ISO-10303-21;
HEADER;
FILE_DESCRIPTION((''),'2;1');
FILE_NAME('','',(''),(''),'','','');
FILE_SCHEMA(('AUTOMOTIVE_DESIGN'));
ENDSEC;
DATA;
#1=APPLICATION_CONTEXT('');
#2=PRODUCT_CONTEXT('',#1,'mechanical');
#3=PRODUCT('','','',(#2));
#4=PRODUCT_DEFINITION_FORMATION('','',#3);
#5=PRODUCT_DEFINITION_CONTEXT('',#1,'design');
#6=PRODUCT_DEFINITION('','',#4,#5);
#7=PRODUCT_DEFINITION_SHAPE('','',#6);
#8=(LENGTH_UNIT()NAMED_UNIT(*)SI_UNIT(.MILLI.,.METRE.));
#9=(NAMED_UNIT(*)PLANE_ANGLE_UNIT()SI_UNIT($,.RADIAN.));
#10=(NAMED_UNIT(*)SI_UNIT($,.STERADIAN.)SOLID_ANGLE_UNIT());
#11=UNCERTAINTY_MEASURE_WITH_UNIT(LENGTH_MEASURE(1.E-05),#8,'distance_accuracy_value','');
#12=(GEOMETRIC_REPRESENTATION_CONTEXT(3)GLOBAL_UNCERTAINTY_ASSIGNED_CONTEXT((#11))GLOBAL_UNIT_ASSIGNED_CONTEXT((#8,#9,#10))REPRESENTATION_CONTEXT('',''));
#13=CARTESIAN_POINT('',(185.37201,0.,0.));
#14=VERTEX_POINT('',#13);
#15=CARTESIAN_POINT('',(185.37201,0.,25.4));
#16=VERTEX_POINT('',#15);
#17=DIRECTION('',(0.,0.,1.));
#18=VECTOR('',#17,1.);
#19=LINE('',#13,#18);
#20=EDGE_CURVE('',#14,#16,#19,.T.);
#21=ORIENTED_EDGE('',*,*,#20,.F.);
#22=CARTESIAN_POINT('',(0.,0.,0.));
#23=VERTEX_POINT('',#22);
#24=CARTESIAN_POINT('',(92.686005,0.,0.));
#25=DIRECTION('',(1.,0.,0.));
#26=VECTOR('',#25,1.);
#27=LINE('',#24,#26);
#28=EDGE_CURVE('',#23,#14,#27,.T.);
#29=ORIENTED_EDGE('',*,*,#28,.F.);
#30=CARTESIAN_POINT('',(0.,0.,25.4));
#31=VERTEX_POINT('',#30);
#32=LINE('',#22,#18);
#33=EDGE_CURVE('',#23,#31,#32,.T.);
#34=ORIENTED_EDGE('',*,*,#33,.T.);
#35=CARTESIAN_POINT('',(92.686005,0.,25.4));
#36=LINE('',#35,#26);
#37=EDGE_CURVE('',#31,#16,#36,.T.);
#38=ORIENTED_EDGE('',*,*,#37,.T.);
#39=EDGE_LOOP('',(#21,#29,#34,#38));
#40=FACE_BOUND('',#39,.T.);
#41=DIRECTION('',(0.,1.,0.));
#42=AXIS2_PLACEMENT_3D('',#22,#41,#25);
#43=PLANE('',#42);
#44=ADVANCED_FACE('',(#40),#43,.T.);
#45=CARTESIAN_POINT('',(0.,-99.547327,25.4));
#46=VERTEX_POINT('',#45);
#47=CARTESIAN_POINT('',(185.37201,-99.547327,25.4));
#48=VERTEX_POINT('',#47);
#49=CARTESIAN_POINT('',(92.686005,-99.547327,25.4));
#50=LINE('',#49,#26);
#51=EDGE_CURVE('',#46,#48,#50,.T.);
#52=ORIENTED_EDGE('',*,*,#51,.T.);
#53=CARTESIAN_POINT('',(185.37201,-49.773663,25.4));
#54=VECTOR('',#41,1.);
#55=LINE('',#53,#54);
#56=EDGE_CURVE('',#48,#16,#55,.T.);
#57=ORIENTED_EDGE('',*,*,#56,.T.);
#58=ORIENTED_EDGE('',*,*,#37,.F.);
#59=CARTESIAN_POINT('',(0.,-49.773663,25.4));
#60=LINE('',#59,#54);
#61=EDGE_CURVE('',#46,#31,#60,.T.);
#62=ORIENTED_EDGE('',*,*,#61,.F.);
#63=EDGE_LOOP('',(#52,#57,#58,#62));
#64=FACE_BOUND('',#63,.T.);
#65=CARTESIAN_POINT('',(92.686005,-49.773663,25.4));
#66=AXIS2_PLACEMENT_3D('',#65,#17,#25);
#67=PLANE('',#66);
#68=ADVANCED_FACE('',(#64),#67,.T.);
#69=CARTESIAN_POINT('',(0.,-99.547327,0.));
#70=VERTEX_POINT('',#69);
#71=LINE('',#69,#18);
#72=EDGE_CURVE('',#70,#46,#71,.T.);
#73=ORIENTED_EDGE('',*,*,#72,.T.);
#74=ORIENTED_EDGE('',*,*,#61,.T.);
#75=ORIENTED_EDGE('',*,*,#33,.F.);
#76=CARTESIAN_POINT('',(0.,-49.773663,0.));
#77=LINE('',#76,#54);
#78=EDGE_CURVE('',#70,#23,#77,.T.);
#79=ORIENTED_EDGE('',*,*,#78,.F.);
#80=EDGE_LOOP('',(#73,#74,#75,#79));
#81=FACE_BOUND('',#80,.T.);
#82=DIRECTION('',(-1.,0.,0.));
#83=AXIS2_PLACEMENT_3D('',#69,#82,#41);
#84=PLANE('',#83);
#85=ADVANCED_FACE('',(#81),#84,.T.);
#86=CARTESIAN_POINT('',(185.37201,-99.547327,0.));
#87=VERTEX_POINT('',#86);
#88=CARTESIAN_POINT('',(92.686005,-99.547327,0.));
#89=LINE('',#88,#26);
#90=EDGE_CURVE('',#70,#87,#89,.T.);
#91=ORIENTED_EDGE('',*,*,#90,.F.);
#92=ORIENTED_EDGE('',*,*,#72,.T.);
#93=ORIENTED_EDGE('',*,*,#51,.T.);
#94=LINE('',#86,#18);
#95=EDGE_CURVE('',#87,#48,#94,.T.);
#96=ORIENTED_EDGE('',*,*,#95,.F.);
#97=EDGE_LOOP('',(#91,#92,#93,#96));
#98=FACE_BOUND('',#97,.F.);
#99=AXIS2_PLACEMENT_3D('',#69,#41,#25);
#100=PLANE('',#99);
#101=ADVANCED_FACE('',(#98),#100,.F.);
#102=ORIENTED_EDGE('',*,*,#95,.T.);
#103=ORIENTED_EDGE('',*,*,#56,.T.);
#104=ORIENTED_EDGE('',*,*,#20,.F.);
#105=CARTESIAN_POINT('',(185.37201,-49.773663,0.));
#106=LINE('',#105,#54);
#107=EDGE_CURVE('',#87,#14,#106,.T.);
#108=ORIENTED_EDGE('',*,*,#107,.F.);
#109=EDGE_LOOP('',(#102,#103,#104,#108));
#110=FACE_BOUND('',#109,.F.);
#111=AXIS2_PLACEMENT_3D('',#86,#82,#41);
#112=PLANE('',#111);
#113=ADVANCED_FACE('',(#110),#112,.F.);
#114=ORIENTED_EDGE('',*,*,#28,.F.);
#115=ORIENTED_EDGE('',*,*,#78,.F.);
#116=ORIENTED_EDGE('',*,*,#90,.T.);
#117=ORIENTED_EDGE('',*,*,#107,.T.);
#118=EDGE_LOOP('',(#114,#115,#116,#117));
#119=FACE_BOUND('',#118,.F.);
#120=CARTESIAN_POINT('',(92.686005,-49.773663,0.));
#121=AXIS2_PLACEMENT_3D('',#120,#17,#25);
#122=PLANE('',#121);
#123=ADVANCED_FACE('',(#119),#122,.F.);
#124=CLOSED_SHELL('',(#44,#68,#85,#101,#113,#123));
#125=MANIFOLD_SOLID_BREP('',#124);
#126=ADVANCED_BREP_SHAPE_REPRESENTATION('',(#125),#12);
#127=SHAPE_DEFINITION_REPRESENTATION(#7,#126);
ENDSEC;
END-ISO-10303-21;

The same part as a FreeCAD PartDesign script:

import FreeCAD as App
import Part
import Sketcher

V = App.Vector
Q = App.Units.Quantity


def add_polygon(sketch, points):
    """Adds a closed chain of lines whose ends are joined by coincident constraints."""
    first, n = sketch.GeometryCount, len(points)
    for a, b in zip(points, points[1:] + points[:1]):
        sketch.addGeometry(Part.LineSegment(App.Vector(*a, 0), App.Vector(*b, 0)), False)
    for i in range(n):
        sketch.addConstraint(Sketcher.Constraint("Coincident", first + i, 2, first + (i + 1) % n, 1))

doc = App.newDocument("Part")
params = doc.addObject("Spreadsheet::Sheet", "Params")
for row, (alias, value) in enumerate([
    ("pad1_length", "1 in"),
    ("sketch2_diameter", "3 in"),
    ("pocket1_length", "1.64 in"),
    ("pocket1_taper", "3 deg"),
], start=1):
    params.set(f"A{row}", alias)
    params.set(f"B{row}", "=" + value)
    params.setAlias(f"B{row}", alias)

body = doc.addObject("PartDesign::Body", "Body")

# Sketch on XY plane
sketch1 = doc.addObject("Sketcher::SketchObject", "Sketch")
body.addObject(sketch1)
sketch1.AttachmentSupport = (doc.XY_Plane, [""])
sketch1.MapMode = "FlatFace"
add_polygon(sketch1, [(0, 0), (0, -100), (185, -100), (185, 0)])  # lines 0-3
sketch1.addConstraint(Sketcher.Constraint("Vertical", 0))
sketch1.addConstraint(Sketcher.Constraint("Horizontal", 1))
sketch1.addConstraint(Sketcher.Constraint("Vertical", 2))
sketch1.addConstraint(Sketcher.Constraint("Horizontal", 3))
sketch1.addConstraint(Sketcher.Constraint("Coincident", 3, 2, -1, 1))
sketch1.addConstraint(Sketcher.Constraint("DistanceX", 1, 1, 1, 2, Q("185.37201 mm")))
sketch1.addConstraint(Sketcher.Constraint("DistanceY", 0, 2, 0, 1, Q("99.547327 mm")))
pad1 = doc.addObject("PartDesign::Pad", "Pad")
body.addObject(pad1)
pad1.Profile = sketch1
pad1.setExpression("Length", "Params.pad1_length")

# Sketch on XY plane
sketch2 = doc.addObject("Sketcher::SketchObject", "Sketch001")
body.addObject(sketch2)
sketch2.AttachmentSupport = (doc.XY_Plane, [""])
sketch2.MapMode = "FlatFace"
sketch2.addGeometry(Part.Circle(V(71, 41, 0), V(0, 0, 1), 38), False)
sketch2.addConstraint(Sketcher.Constraint("Diameter", 0, Q("3 in")))
sketch2.addConstraint(Sketcher.Constraint("DistanceY", -1, 1, 0, 3, Q("1.6 in")))
sketch2.addConstraint(Sketcher.Constraint("DistanceX", -1, 1, 0, 3, Q("71.480103 mm")))
sketch2.setExpression("Constraints[0]", "Params.sketch2_diameter")
pocket1 = doc.addObject("PartDesign::Pocket", "Pocket")
body.addObject(pocket1)
pocket1.Profile = sketch2
pocket1.setExpression("Length", "Params.pocket1_length")
pocket1.Reversed = True
pocket1.setExpression("TaperAngle", "Params.pocket1_taper")

doc.recompute()
